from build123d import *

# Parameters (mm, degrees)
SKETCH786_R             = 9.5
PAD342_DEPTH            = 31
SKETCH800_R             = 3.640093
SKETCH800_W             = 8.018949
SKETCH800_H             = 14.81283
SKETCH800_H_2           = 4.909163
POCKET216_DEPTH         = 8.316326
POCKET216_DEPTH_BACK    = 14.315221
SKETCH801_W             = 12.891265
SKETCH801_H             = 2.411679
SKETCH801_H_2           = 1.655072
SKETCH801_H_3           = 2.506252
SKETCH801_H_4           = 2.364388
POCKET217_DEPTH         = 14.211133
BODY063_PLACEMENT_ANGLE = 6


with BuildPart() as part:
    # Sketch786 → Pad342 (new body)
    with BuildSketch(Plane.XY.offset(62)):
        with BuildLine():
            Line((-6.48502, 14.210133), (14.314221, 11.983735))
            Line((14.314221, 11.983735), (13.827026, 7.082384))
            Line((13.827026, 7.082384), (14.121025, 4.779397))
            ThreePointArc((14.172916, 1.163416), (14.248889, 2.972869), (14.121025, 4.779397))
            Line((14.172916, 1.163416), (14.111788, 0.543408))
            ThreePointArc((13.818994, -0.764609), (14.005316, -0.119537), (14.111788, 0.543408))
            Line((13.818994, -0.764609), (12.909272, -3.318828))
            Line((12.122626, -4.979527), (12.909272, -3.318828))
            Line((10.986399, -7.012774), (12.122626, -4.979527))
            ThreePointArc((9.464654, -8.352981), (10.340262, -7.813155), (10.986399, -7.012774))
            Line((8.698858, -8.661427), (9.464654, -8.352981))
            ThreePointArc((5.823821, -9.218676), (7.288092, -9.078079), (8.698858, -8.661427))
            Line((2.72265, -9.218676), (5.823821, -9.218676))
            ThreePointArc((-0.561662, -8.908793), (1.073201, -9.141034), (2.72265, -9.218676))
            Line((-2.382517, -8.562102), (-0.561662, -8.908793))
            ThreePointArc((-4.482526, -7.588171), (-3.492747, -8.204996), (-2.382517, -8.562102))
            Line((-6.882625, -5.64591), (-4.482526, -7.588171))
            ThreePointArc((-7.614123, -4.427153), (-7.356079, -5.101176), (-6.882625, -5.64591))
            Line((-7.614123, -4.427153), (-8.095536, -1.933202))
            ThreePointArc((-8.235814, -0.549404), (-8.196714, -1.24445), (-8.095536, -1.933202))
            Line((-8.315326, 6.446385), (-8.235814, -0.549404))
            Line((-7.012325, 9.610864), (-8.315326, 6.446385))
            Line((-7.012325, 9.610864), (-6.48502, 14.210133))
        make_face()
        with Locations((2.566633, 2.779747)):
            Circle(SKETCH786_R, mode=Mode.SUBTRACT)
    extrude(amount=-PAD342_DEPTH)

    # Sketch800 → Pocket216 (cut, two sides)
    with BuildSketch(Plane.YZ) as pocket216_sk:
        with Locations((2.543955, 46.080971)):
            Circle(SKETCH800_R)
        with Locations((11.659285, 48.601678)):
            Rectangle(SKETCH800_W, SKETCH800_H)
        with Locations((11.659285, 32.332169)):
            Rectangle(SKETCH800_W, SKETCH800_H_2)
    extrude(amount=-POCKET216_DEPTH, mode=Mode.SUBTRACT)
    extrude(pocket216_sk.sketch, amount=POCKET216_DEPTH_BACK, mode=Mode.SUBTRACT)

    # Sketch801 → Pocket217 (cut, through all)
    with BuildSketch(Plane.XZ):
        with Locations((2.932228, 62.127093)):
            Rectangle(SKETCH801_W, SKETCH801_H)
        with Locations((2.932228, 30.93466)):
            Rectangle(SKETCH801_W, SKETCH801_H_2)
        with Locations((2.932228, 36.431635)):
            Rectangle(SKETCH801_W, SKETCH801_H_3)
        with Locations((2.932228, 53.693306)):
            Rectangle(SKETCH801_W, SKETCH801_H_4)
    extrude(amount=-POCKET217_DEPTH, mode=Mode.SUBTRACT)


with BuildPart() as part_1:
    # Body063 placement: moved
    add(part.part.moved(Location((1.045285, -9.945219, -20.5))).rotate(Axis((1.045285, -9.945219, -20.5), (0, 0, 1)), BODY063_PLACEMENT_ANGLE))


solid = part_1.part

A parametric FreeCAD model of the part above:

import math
import FreeCAD as App
import Part
import Sketcher
from FreeCAD import Vector


def add_polygon(sketch, points):
    """Adds a closed chain of lines whose ends are joined by coincident constraints."""
    first, n = sketch.GeometryCount, len(points)
    for a, b in zip(points, points[1:] + points[:1]):
        sketch.addGeometry(Part.LineSegment(App.Vector(*a, 0), App.Vector(*b, 0)), False)
    for i in range(n):
        sketch.addConstraint(Sketcher.Constraint("Coincident", first + i, 2, first + (i + 1) % n, 1))

doc = App.newDocument("Part")
params = doc.addObject("Spreadsheet::Sheet", "Params")
for row, (alias, value) in enumerate([
    ("sketch1_diameter", "19 mm"),
    ("pad1_length", "31 mm"),
], start=1):
    params.set(f"A{row}", alias)
    params.set(f"B{row}", "=" + value)
    params.setAlias(f"B{row}", alias)

body = doc.addObject("PartDesign::Body", "Body")

# Sketch on XY plane
sketch1 = doc.addObject("Sketcher::SketchObject", "Sketch")
body.addObject(sketch1)
sketch1.AttachmentSupport = (doc.XY_Plane, [""])
sketch1.MapMode = "FlatFace"
sketch1.AttachmentOffset = App.Placement(Vector(0, 0, 62), App.Rotation())
sketch1.addGeometry([
    Part.LineSegment(Vector(14.314221, 11.983735, 0), Vector(-6.48502, 14.210133, 0)),  # 0
    Part.LineSegment(Vector(-6.48502, 14.210133, 0), Vector(-7.012325, 9.610864, 0)),  # 1
    Part.LineSegment(Vector(-7.012325, 9.610864, 0), Vector(-8.315326, 6.446385, 0)),  # 2
    Part.LineSegment(Vector(-8.315326, 6.446385, 0), Vector(-8.235814, -0.549404, 0)),  # 3
    Part.ArcOfCircle(Part.Circle(Vector(-0.469551, -0.461134, 0), Vector(0, 0, 1), 7.766765), math.radians(-179.348811), math.radians(-169.074391)),  # 4
    Part.LineSegment(Vector(-8.095536, -1.933202, 0), Vector(-7.614123, -4.427153, 0)),  # 5
    Part.ArcOfCircle(Part.Circle(Vector(-5.578341, -4.034177, 0), Vector(0, 0, 1), 2.073364), math.radians(-169.074339), math.radians(-128.981294)),  # 6
    Part.LineSegment(Vector(-6.882625, -5.64591, 0), Vector(-4.482526, -7.588171, 0)),  # 7
    Part.ArcOfCircle(Part.Circle(Vector(-1.493906, -3.895057, 0), Vector(0, 0, 1), 4.750888), math.radians(-128.981206), math.radians(-100.780147)),  # 8
    Part.LineSegment(Vector(-2.382517, -8.562102, 0), Vector(-0.561662, -8.908793, 0)),  # 9
    Part.ArcOfCircle(Part.Circle(Vector(2.722642, 8.340663, 0), Vector(0, 0, 1), 17.559339), math.radians(-100.78011), math.radians(-89.999974)),  # 10
    Part.LineSegment(Vector(2.72265, -9.218676, 0), Vector(5.823821, -9.218676, 0)),  # 11
    Part.ArcOfCircle(Part.Circle(Vector(5.823816, -1.523381, 0), Vector(0, 0, 1), 7.695295), math.radians(-89.999965), math.radians(-68.061552)),  # 12
    Part.LineSegment(Vector(8.698858, -8.661427, 0), Vector(9.464654, -8.352981, 0)),  # 13
    Part.ArcOfCircle(Part.Circle(Vector(8.326056, -5.526113, 0), Vector(0, 0, 1), 3.047554), math.radians(-68.061537), math.radians(-29.197456)),  # 14
    Part.LineSegment(Vector(10.986399, -7.012774, 0), Vector(12.122626, -4.979527, 0)),  # 15
    Part.LineSegment(Vector(12.122626, -4.979527, 0), Vector(12.909272, -3.318828, 0)),  # 16
    Part.LineSegment(Vector(12.909272, -3.318828, 0), Vector(13.818994, -0.764609, 0)),  # 17
    Part.ArcOfCircle(Part.Circle(Vector(8.628705, 1.083994, 0), Vector(0, 0, 1), 5.509667), math.radians(-19.604154), math.radians(-5.630684)),  # 18
    Part.LineSegment(Vector(14.111788, 0.543408, 0), Vector(14.172916, 1.163416, 0)),  # 19
    Part.ArcOfCircle(Part.Circle(Vector(-1.838559, 2.742007, 0), Vector(0, 0, 1), 16.089104), math.radians(-5.630664), math.radians(7.274993)),  # 20
    Part.LineSegment(Vector(14.121025, 4.779397, 0), Vector(13.827026, 7.082384, 0)),  # 21
    Part.LineSegment(Vector(13.827026, 7.082384, 0), Vector(14.314221, 11.983735, 0)),  # 22
    Part.Circle(Vector(2.566633, 2.779747, 0), Vector(0, 0, 1), 9.5),  # 23
], False)
sketch1.addConstraint([
    Sketcher.Constraint("Coincident", 0, 2, 1, 1),
    Sketcher.Constraint("Coincident", 1, 2, 2, 1),
    Sketcher.Constraint("Coincident", 2, 2, 3, 1),
    Sketcher.Constraint("Coincident", 3, 2, 4, 1),
    Sketcher.Constraint("Coincident", 4, 2, 5, 1),
    Sketcher.Constraint("Coincident", 5, 2, 6, 1),
    Sketcher.Constraint("Coincident", 6, 2, 7, 1),
    Sketcher.Constraint("Coincident", 7, 2, 8, 1),
    Sketcher.Constraint("Coincident", 8, 2, 9, 1),
    Sketcher.Constraint("Coincident", 9, 2, 10, 1),
    Sketcher.Constraint("Coincident", 10, 2, 11, 1),
    Sketcher.Constraint("Coincident", 11, 2, 12, 1),
    Sketcher.Constraint("Coincident", 12, 2, 13, 1),
    Sketcher.Constraint("Coincident", 13, 2, 14, 1),
    Sketcher.Constraint("Coincident", 14, 2, 15, 1),
    Sketcher.Constraint("Coincident", 15, 2, 16, 1),
    Sketcher.Constraint("Coincident", 16, 2, 17, 1),
    Sketcher.Constraint("Coincident", 17, 2, 18, 1),
    Sketcher.Constraint("Coincident", 18, 2, 19, 1),
    Sketcher.Constraint("Coincident", 19, 2, 20, 1),
    Sketcher.Constraint("Coincident", 20, 2, 21, 1),
    Sketcher.Constraint("Coincident", 21, 2, 22, 1),
    Sketcher.Constraint("Coincident", 22, 2, 0, 1),
    Sketcher.Constraint("Horizontal", 11),
    Sketcher.Constraint("Diameter", 23, 19.0),
    Sketcher.Constraint("Radius", 8, 4.750888),
    Sketcher.Constraint("Radius", 10, 17.559339),
    Sketcher.Constraint("Radius", 4, 7.766765),
    Sketcher.Constraint("Radius", 6, 2.073364),
    Sketcher.Constraint("Radius", 12, 7.695295),
    Sketcher.Constraint("Radius", 14, 3.047554),
    Sketcher.Constraint("Radius", 18, 5.509667),
    Sketcher.Constraint("Radius", 20, 16.089104),
    Sketcher.Constraint("DistanceX", 2, 2, 1, 2, 1.303001),
    Sketcher.Constraint("DistanceX", 21, 2, 20, 2, 0.293999),
    Sketcher.Constraint("Distance", 1, 4.629398),
    Sketcher.Constraint("DistanceX", 11, 1, 11, 2, 3.101171),
    Sketcher.Constraint("DistanceY", 4, 2, -1, 1, 1.933202),
    Sketcher.Constraint("DistanceY", 8, 2, -1, 1, 8.562102),
    Sketcher.Constraint("DistanceX", -1, 1, 14, 2, 10.986399),
    Sketcher.Constraint("DistanceX", 20, 3, 10, 3, 4.561201),
    Sketcher.Constraint("DistanceY", 10, 3, 1, 2, 1.270201),
    Sketcher.Constraint("DistanceX", 6, 2, 7, 2, 2.400099),
    Sketcher.Constraint("DistanceX", 14, 3, 13, 2, 1.138598),
    Sketcher.Constraint("DistanceY", 13, 2, 12, 3, 6.8296),
    Sketcher.Constraint("DistanceY", 12, 2, 15, 2, 3.6819),
    Sketcher.Constraint("DistanceY", 15, 2, 16, 2, 1.660699),
    Sketcher.Constraint("Distance", 0, 20.918061),
    Sketcher.Constraint("Distance", 2, 3.422242),
    Sketcher.Constraint("Distance", 3, 6.996241),
    Sketcher.Constraint("Distance", 5, 2.53999),
    Sketcher.Constraint("Distance", 7, 3.087532),
    Sketcher.Constraint("Distance", 13, 0.82558),
    Sketcher.Constraint("Distance", 16, 1.837589),
    Sketcher.Constraint("Distance", 17, 2.711389),
    Sketcher.Constraint("DistanceX", 4, 3, -1, 1, 0.469551),
    Sketcher.Constraint("DistanceX", 6, 3, -1, 1, 5.578341),
    Sketcher.Constraint("DistanceY", 12, 3, -1, 1, 1.523381),
    Sketcher.Constraint("DistanceX", 20, 3, -1, 1, 1.838559),
    Sketcher.Constraint("DistanceX", 0, 2, -1, 1, 6.48502),
    Sketcher.Constraint("DistanceY", 6, 2, -1, 1, 5.64591),
    Sketcher.Constraint("DistanceX", 9, 2, -1, 1, 0.561662),
    Sketcher.Constraint("DistanceX", -1, 1, 10, 2, 2.72265),
    Sketcher.Constraint("DistanceX", -1, 1, 12, 2, 8.698858),
    Sketcher.Constraint("DistanceY", 17, 2, -1, 1, 0.764609),
    Sketcher.Constraint("DistanceY", -1, 1, 18, 2, 0.543408),
    Sketcher.Constraint("DistanceX", -1, 1, 22, 2, 14.314221),
    Sketcher.Constraint("DistanceY", 6, 3, 8, 3, 0.139121),
    Sketcher.Constraint("DistanceY", 8, 3, 10, 3, 12.23572),
    Sketcher.Constraint("DistanceX", 12, 3, 14, 3, 2.502239),
    Sketcher.Constraint("DistanceY", 14, 3, 4, 3, 5.06498),
    Sketcher.Constraint("DistanceX", 12, 3, 18, 3, 2.804889),
    Sketcher.Constraint("DistanceY", 18, 3, 10, 3, 7.256669),
    Sketcher.Constraint("DistanceY", 4, 3, 20, 3, 3.20314),
    Sketcher.Constraint("DistanceX", 20, 3, 23, 3, 4.405192),
    Sketcher.Constraint("DistanceY", 20, 3, 23, 3, 0.03774),
    Sketcher.Constraint("DistanceY", 10, 3, 0, 2, 5.86947),
    Sketcher.Constraint("DistanceX", 18, 2, 19, 2, 0.061128),
    Sketcher.Constraint("DistanceX", 20, 2, 19, 2, 0.051891),
    Sketcher.Constraint("DistanceY", 19, 2, 21, 2, 5.918968),
])
sketch1.setExpression("Constraints[24]", "Params.sketch1_diameter")
pad1 = doc.addObject("PartDesign::Pad", "Pad")
body.addObject(pad1)
pad1.Profile = sketch1
pad1.setExpression("Length", "Params.pad1_length")
pad1.Reversed = True

# Sketch on YZ plane
sketch2 = doc.addObject("Sketcher::SketchObject", "Sketch001")
body.addObject(sketch2)
sketch2.AttachmentSupport = (doc.YZ_Plane, [""])
sketch2.MapMode = "FlatFace"
sketch2.addGeometry(Part.Circle(Vector(2.5, 46.1, 0), Vector(0, 0, 1), 3.6), False)  # 0
add_polygon(sketch2, [(7.6, 56), (7.6, 41.2), (15.7, 41.2), (15.7, 56)])  # lines 1-4
add_polygon(sketch2, [(7.6, 34.8), (7.6, 29.9), (15.7, 29.9), (15.7, 34.8)])  # lines 5-8
sketch2.addConstraint([
    Sketcher.Constraint("Vertical", 1),
    Sketcher.Constraint("Horizontal", 2),
    Sketcher.Constraint("Vertical", 3),
    Sketcher.Constraint("Horizontal", 4),
    Sketcher.Constraint("Vertical", 5),
    Sketcher.Constraint("Horizontal", 6),
    Sketcher.Constraint("Vertical", 7),
    Sketcher.Constraint("Horizontal", 8),
    Sketcher.Constraint("Vertical", 4, 2, 5, 2),
    Sketcher.Constraint("Vertical", 3, 2, 6, 2),
    Sketcher.Constraint("Diameter", 0, 7.280186),
    Sketcher.Constraint("DistanceX", 2, 1, 2, 2, 8.018949),
    Sketcher.Constraint("DistanceY", 1, 2, 1, 1, 14.81283),
    Sketcher.Constraint("DistanceY", 5, 2, 5, 1, 4.909163),
    Sketcher.Constraint("DistanceY", -1, 1, 0, 3, 46.080971),
    Sketcher.Constraint("DistanceX", -1, 1, 1, 2, 7.649811),
    Sketcher.Constraint("DistanceY", -1, 1, 7, 2, 34.78675),
    Sketcher.Constraint("DistanceY", 1, 2, 0, 3, 4.885708),
    Sketcher.Constraint("DistanceX", -1, 1, 0, 3, 2.543955),
])
pocket1 = doc.addObject("PartDesign::Pocket", "Pocket")
body.addObject(pocket1)
pocket1.Profile = sketch2
pocket1.Type = "ThroughAll"
pocket1.Midplane = True

# Sketch on XZ plane
sketch3 = doc.addObject("Sketcher::SketchObject", "Sketch002")
body.addObject(sketch3)
sketch3.AttachmentSupport = (doc.XZ_Plane, [""])
sketch3.MapMode = "FlatFace"
add_polygon(sketch3, [(-3.5, 63.3), (-3.5, 60.9), (9.4, 60.9), (9.4, 63.3)])  # lines 0-3
add_polygon(sketch3, [(-3.5, 31.8), (-3.5, 30.1), (9.4, 30.1), (9.4, 31.8)])  # lines 4-7
add_polygon(sketch3, [(-3.5, 37.7), (-3.5, 35.2), (9.4, 35.2), (9.4, 37.7)])  # lines 8-11
add_polygon(sketch3, [(-3.5, 54.9), (-3.5, 52.5), (9.4, 52.5), (9.4, 54.9)])  # lines 12-15
sketch3.addConstraint([
    Sketcher.Constraint("Vertical", 0),
    Sketcher.Constraint("Horizontal", 1),
    Sketcher.Constraint("Vertical", 2),
    Sketcher.Constraint("Horizontal", 3),
    Sketcher.Constraint("Vertical", 4),
    Sketcher.Constraint("Horizontal", 5),
    Sketcher.Constraint("Vertical", 6),
    Sketcher.Constraint("Horizontal", 7),
    Sketcher.Constraint("Vertical", 8),
    Sketcher.Constraint("Horizontal", 9),
    Sketcher.Constraint("Vertical", 10),
    Sketcher.Constraint("Horizontal", 11),
    Sketcher.Constraint("Vertical", 12),
    Sketcher.Constraint("Horizontal", 13),
    Sketcher.Constraint("Vertical", 14),
    Sketcher.Constraint("Horizontal", 15),
    Sketcher.Constraint("Vertical", 3, 2, 4, 2),
    Sketcher.Constraint("Vertical", 2, 2, 5, 2),
    Sketcher.Constraint("Vertical", 7, 2, 8, 2),
    Sketcher.Constraint("Vertical", 6, 2, 9, 2),
    Sketcher.Constraint("Vertical", 11, 2, 12, 2),
    Sketcher.Constraint("Vertical", 10, 2, 13, 2),
    Sketcher.Constraint("DistanceY", 0, 2, 0, 1, 2.411679),
    Sketcher.Constraint("DistanceY", 12, 2, 12, 1, 2.364388),
    Sketcher.Constraint("DistanceY", -1, 1, 14, 2, 54.8755),
    Sketcher.Constraint("DistanceX", 1, 1, 1, 2, 12.891265),
    Sketcher.Constraint("DistanceY", 4, 2, 4, 1, 1.655072),
    Sketcher.Constraint("DistanceY", 8, 2, 8, 1, 2.506252),
    Sketcher.Constraint("DistanceX", -1, 1, 1, 2, 9.377861),
    Sketcher.Constraint("DistanceY", -1, 1, 8, 2, 35.178509),
    Sketcher.Constraint("DistanceY", 4, 2, 0, 2, 30.814129),
    Sketcher.Constraint("DistanceY", 12, 2, 0, 2, 8.410142),
])
pocket2 = doc.addObject("PartDesign::Pocket", "Pocket001")
body.addObject(pocket2)
pocket2.Profile = sketch3
pocket2.Type = "ThroughAll"
body2 = doc.addObject("PartDesign::Body", "Body001")
doc.recompute()

body.Placement = App.Placement(Vector(1.045285, -9.945219, -20.5), App.Rotation(Vector(0, 0, 1), 6))
boolean = doc.addObject("PartDesign::Boolean", "Boolean")
body2.addObject(boolean)
boolean.Type = "Fuse"
boolean.addObjects([body])

doc.recompute()
